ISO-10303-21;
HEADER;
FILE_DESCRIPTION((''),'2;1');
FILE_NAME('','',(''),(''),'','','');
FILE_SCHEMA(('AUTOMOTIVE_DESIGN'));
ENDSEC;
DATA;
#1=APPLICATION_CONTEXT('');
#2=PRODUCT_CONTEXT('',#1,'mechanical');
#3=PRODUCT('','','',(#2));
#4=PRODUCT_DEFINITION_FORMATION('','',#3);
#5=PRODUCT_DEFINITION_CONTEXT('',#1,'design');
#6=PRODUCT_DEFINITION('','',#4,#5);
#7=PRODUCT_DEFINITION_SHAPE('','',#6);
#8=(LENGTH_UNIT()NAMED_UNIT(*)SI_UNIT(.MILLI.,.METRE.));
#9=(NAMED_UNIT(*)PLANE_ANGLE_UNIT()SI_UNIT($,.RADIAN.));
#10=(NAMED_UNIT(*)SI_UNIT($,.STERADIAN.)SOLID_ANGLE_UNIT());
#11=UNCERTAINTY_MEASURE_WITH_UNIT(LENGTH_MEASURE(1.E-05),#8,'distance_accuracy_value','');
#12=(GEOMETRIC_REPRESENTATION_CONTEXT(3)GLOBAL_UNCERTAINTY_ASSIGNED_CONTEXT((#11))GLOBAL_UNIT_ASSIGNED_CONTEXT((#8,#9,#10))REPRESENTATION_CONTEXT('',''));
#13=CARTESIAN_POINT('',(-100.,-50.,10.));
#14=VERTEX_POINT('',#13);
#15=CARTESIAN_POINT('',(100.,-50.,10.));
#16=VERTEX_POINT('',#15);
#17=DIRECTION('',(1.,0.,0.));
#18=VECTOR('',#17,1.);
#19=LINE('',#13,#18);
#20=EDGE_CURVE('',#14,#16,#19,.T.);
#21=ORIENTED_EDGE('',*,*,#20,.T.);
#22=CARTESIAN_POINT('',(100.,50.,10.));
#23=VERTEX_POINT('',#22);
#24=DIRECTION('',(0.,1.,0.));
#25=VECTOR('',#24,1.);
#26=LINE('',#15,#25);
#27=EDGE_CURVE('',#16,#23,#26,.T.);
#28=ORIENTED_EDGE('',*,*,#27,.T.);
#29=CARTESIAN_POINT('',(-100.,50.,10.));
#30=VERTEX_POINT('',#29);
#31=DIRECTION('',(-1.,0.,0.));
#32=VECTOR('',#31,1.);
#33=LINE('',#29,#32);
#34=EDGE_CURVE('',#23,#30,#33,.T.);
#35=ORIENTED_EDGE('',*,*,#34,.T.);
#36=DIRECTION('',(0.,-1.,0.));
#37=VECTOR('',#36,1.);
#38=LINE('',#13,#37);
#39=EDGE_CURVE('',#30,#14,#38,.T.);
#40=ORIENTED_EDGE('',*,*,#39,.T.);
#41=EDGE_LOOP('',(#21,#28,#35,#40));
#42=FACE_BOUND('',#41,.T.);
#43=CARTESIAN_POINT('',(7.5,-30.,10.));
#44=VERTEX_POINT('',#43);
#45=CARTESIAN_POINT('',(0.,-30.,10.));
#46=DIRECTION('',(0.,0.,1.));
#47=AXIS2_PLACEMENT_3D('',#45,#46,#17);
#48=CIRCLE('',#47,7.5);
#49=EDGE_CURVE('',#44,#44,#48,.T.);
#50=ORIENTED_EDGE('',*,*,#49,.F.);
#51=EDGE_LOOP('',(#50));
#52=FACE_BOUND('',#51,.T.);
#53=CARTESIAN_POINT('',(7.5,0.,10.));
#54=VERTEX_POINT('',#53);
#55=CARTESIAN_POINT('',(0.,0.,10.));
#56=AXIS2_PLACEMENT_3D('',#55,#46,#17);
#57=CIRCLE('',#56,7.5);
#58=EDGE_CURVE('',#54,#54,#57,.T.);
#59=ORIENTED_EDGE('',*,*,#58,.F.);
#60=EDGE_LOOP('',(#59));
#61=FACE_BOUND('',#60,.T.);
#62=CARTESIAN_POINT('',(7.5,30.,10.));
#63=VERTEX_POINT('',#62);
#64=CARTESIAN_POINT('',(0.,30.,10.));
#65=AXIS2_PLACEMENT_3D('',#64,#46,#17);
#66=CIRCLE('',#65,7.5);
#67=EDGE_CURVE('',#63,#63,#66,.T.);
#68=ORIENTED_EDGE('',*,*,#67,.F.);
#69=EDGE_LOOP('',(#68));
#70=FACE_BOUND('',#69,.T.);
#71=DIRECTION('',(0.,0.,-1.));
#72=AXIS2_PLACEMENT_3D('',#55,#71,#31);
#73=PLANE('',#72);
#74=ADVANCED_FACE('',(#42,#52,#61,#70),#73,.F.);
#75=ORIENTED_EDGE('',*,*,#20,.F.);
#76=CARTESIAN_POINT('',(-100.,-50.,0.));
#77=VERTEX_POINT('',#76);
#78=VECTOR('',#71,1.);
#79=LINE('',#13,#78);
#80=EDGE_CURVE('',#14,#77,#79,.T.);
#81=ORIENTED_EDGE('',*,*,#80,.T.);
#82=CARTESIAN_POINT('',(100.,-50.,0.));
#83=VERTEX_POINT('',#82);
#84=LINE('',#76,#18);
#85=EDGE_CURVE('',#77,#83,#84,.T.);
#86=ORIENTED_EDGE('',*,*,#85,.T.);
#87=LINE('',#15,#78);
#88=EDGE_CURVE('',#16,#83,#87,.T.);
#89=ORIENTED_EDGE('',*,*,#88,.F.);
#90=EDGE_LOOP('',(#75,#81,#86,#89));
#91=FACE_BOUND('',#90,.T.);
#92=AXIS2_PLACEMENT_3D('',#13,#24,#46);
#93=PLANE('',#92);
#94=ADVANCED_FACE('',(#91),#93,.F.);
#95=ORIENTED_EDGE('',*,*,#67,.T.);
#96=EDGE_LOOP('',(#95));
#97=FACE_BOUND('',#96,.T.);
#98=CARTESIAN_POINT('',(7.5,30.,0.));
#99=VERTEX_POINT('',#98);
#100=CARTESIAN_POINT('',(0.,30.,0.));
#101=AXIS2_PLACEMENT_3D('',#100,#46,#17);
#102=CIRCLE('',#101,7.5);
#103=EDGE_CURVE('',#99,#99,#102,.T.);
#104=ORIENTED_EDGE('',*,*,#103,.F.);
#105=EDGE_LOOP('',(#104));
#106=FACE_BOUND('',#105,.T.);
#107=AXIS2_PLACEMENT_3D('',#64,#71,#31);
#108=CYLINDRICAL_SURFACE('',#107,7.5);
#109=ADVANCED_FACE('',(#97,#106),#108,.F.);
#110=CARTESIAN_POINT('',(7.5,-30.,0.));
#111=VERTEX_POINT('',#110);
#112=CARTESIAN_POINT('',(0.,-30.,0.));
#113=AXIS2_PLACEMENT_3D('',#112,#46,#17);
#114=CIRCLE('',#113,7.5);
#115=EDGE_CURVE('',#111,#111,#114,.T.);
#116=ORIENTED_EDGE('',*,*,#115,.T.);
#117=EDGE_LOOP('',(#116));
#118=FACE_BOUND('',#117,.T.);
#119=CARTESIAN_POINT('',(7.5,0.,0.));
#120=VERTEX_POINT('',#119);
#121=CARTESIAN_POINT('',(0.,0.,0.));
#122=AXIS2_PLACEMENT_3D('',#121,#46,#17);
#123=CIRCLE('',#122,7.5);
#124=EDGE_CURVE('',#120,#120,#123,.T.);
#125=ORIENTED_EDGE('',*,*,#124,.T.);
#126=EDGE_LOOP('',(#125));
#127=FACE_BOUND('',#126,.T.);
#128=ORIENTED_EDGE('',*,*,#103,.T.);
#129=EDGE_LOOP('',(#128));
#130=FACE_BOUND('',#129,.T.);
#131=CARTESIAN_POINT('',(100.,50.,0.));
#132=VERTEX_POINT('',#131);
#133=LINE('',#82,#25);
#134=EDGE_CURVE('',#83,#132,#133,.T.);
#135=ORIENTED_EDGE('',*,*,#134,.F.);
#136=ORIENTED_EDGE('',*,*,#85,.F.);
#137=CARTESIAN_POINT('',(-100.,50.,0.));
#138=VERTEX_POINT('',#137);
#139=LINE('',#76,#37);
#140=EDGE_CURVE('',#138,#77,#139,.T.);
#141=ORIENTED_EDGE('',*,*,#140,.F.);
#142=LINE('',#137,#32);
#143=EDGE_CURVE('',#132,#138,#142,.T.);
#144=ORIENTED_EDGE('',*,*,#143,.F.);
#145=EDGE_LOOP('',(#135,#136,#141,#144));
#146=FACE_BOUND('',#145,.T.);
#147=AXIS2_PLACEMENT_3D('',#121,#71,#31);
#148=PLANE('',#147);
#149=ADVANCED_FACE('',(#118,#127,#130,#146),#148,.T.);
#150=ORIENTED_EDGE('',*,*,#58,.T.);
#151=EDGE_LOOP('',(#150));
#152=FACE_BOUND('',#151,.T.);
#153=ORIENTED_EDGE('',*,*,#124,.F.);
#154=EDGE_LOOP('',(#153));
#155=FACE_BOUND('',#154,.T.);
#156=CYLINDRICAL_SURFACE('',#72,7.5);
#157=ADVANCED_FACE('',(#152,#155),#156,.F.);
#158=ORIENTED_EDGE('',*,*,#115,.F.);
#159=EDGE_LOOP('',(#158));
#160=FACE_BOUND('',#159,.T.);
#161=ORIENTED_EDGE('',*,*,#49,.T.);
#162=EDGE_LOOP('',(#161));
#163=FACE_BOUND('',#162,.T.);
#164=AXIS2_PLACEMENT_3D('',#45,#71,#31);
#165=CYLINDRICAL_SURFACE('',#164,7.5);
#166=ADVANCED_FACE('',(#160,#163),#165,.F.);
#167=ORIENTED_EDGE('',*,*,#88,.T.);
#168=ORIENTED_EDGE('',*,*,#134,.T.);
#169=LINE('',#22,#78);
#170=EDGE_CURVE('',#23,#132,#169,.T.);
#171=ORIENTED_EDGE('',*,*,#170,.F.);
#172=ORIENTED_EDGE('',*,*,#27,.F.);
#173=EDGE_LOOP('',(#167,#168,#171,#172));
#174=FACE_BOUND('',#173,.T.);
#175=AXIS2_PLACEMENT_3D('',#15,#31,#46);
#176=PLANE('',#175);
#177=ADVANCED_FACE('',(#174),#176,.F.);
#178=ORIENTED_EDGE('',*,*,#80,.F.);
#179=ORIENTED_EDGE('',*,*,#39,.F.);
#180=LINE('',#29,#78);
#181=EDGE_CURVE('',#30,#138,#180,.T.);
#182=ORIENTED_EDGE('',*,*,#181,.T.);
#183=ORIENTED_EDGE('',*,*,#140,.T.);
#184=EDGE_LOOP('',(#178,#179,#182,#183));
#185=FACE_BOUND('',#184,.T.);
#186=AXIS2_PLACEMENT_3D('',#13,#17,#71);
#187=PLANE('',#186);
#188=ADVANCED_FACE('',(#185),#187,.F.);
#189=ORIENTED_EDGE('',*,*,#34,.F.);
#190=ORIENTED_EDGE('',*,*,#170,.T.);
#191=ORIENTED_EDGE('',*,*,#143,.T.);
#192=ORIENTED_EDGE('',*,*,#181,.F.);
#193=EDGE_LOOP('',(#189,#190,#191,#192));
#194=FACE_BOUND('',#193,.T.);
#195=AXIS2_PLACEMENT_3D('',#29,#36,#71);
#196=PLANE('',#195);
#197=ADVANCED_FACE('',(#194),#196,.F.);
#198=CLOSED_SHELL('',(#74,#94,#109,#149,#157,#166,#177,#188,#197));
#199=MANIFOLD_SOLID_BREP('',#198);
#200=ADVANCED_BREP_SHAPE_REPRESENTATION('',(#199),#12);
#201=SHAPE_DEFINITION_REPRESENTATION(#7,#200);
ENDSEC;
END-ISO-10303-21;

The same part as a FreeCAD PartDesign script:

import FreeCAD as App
import Part
import Sketcher

doc = App.newDocument("Part")
body = doc.addObject("PartDesign::Body", "Body")

# Sketch on XY plane
sketch1 = body.newObject("Sketcher::SketchObject", "Sketch")
sketch1.AttachmentSupport = (doc.getObject("XY_Plane"), [""])
sketch1.MapMode = "FlatFace"
sketch1.addGeometry(Part.LineSegment(App.Vector(-100, 50, 0), App.Vector(-100, -50, 0)), False)
sketch1.addGeometry(Part.LineSegment(App.Vector(-100, -50, 0), App.Vector(100, -50, 0)), False)
sketch1.addGeometry(Part.LineSegment(App.Vector(100, -50, 0), App.Vector(100, 50, 0)), False)
sketch1.addGeometry(Part.LineSegment(App.Vector(100, 50, 0), App.Vector(-100, 50, 0)), False)
sketch1.addGeometry(Part.Circle(App.Vector(0, -30, 0), App.Vector(0, 0, 1), 7.5), False)
sketch1.addGeometry(Part.Circle(App.Vector(0, 0, 0), App.Vector(0, 0, 1), 7.5), False)
sketch1.addGeometry(Part.Circle(App.Vector(0, 30, 0), App.Vector(0, 0, 1), 7.5), False)
sketch1.addConstraint(Sketcher.Constraint("Coincident", 0, 2, 1, 1))
sketch1.addConstraint(Sketcher.Constraint("Coincident", 1, 2, 2, 1))
sketch1.addConstraint(Sketcher.Constraint("Coincident", 2, 2, 3, 1))
sketch1.addConstraint(Sketcher.Constraint("Coincident", 3, 2, 0, 1))
sketch1.addConstraint(Sketcher.Constraint("Vertical", 0))
sketch1.addConstraint(Sketcher.Constraint("Horizontal", 1))
sketch1.addConstraint(Sketcher.Constraint("Vertical", 2))
sketch1.addConstraint(Sketcher.Constraint("Horizontal", 3))
sketch1.addConstraint(Sketcher.Constraint("Coincident", 5, 3, -1, 1))
sketch1.addConstraint(Sketcher.Constraint("Equal", 4, 5))
sketch1.addConstraint(Sketcher.Constraint("Equal", 5, 6))
sketch1.addConstraint(Sketcher.Constraint("Symmetric", 4, 3, 6, 3, -1, 1))
sketch1.addConstraint(Sketcher.Constraint("Symmetric", 0, 2, 2, 2, -1, 1))
sketch1.addConstraint(Sketcher.Constraint("PointOnObject", 4, 3, -2))
sketch1.addConstraint(Sketcher.Constraint("Diameter", 4, 15.0))
sketch1.addConstraint(Sketcher.Constraint("DistanceX", 1, 1, 1, 2, 200.0))
sketch1.addConstraint(Sketcher.Constraint("DistanceY", 0, 2, 0, 1, 100.0))
sketch1.addConstraint(Sketcher.Constraint("DistanceY", 4, 3, -1, 1, 30.0))
pad1 = body.newObject("PartDesign::Pad", "Pad")
pad1.Profile = sketch1
pad1.Length = 10

doc.recompute()
